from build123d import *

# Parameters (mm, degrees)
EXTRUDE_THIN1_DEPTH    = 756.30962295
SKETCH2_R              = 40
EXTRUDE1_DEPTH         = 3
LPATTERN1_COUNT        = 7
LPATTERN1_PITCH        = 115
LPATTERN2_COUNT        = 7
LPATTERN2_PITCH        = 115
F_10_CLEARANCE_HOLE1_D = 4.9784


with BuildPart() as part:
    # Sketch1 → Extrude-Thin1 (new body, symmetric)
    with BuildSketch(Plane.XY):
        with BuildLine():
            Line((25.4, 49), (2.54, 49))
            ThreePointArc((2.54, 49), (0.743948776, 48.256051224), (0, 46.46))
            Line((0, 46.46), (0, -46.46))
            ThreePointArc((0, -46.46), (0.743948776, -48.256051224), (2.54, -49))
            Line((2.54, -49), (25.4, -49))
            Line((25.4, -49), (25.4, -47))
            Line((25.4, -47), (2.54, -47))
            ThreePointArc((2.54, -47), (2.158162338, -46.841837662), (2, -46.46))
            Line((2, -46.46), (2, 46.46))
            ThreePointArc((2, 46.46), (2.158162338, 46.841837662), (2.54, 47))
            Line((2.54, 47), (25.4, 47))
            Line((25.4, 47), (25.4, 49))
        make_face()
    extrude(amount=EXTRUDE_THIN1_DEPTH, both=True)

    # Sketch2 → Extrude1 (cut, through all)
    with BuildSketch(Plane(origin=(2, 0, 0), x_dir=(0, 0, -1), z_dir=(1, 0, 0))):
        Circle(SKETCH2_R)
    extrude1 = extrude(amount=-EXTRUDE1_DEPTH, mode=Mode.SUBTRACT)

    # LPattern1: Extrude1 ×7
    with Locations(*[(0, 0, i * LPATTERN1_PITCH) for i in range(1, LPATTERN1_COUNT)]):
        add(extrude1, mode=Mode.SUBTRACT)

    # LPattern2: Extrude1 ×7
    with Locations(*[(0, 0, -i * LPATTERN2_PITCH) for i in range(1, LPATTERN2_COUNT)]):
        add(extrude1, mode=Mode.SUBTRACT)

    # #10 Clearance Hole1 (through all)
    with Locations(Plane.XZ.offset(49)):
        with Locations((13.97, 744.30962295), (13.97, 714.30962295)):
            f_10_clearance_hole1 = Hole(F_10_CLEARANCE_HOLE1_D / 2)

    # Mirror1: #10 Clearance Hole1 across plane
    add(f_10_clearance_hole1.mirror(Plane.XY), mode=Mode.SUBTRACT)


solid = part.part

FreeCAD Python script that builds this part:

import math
import FreeCAD as App
import Part
import Sketcher

V = App.Vector
Q = App.Units.Quantity

doc = App.newDocument("Part")
params = doc.addObject("Spreadsheet::Sheet", "Params")
for row, (alias, value) in enumerate([
    ("sketch1_height", "2 mm"),
    ("sketch1_radius", "2.54 mm"),
    ("sketch1_width", "22.86 mm"),
    ("pad1_length", "1512.619246 mm"),
    ("sketch2_diameter", "80 mm"),
    ("linearpattern_pitch", "115 mm"),
    ("linearpattern2_pitch", "115 mm"),
    ("hole_diameter", "4.9784 mm"),
], start=1):
    params.set(f"A{row}", alias)
    params.set(f"B{row}", "=" + value)
    params.setAlias(f"B{row}", alias)

body = doc.addObject("PartDesign::Body", "Body")

sketch1 = body.newObject("Sketcher::SketchObject", "Sketch")
sketch1.AttachmentSupport = (doc.getObject("XY_Plane"), [""])
sketch1.MapMode = "FlatFace"
sketch1.addGeometry(Part.LineSegment(V(25.4, 49, 0), V(2.5, 49, 0)), False)
sketch1.addGeometry(Part.ArcOfCircle(Part.Circle(V(2.5, 46.5, 0), V(0, 0, 1), 2.5), math.radians(90), math.radians(180)), False)
sketch1.addGeometry(Part.LineSegment(V(0, 46.5, 0), V(0, -46.5, 0)), False)
sketch1.addGeometry(Part.ArcOfCircle(Part.Circle(V(2.5, -46.5, 0), V(0, 0, 1), 2.5), math.radians(-180), math.radians(-90)), False)
sketch1.addGeometry(Part.LineSegment(V(2.5, -49, 0), V(25.4, -49, 0)), False)
sketch1.addGeometry(Part.LineSegment(V(25.4, -49, 0), V(25.4, -47, 0)), False)
sketch1.addGeometry(Part.LineSegment(V(25.4, -47, 0), V(2.5, -47, 0)), False)
sketch1.addGeometry(Part.ArcOfCircle(Part.Circle(V(2.5, -46.5, 0), V(0, 0, 1), 0.5), math.radians(180), math.radians(270)), False)
sketch1.addGeometry(Part.LineSegment(V(2, -46.5, 0), V(2, 46.5, 0)), False)
sketch1.addGeometry(Part.ArcOfCircle(Part.Circle(V(2.5, 46.5, 0), V(0, 0, 1), 0.5), math.radians(90), math.radians(180)), False)
sketch1.addGeometry(Part.LineSegment(V(2.5, 47, 0), V(25.4, 47, 0)), False)
sketch1.addGeometry(Part.LineSegment(V(25.4, 47, 0), V(25.4, 49, 0)), False)
sketch1.addConstraint(Sketcher.Constraint("Tangent", 0, 2, 1, 1))
sketch1.addConstraint(Sketcher.Constraint("Tangent", 1, 2, 2, 1))
sketch1.addConstraint(Sketcher.Constraint("Tangent", 2, 2, 3, 1))
sketch1.addConstraint(Sketcher.Constraint("Tangent", 3, 2, 4, 1))
sketch1.addConstraint(Sketcher.Constraint("Coincident", 4, 2, 5, 1))
sketch1.addConstraint(Sketcher.Constraint("Coincident", 5, 2, 6, 1))
sketch1.addConstraint(Sketcher.Constraint("Tangent", 6, 2, 7, 2))
sketch1.addConstraint(Sketcher.Constraint("Tangent", 7, 1, 8, 1))
sketch1.addConstraint(Sketcher.Constraint("Tangent", 8, 2, 9, 2))
sketch1.addConstraint(Sketcher.Constraint("Tangent", 9, 1, 10, 1))
sketch1.addConstraint(Sketcher.Constraint("Coincident", 10, 2, 11, 1))
sketch1.addConstraint(Sketcher.Constraint("Coincident", 11, 2, 0, 1))
sketch1.addConstraint(Sketcher.Constraint("Horizontal", 0))
sketch1.addConstraint(Sketcher.Constraint("Vertical", 2))
sketch1.addConstraint(Sketcher.Constraint("Horizontal", 4))
sketch1.addConstraint(Sketcher.Constraint("Vertical", 5))
sketch1.addConstraint(Sketcher.Constraint("Horizontal", 6))
sketch1.addConstraint(Sketcher.Constraint("Vertical", 8))
sketch1.addConstraint(Sketcher.Constraint("Horizontal", 10))
sketch1.addConstraint(Sketcher.Constraint("Vertical", 11))
sketch1.addConstraint(Sketcher.Constraint("Coincident", 7, 3, 3, 3))
sketch1.addConstraint(Sketcher.Constraint("Coincident", 9, 3, 1, 3))
sketch1.addConstraint(Sketcher.Constraint("Equal", 1, 3))
sketch1.addConstraint(Sketcher.Constraint("Symmetric", 1, 2, 2, 2, -1, 1))
sketch1.addConstraint(Sketcher.Constraint("Vertical", 5, 2, 10, 2))
sketch1.addConstraint(Sketcher.Constraint("DistanceY", 5, 1, 5, 2, Q("2 mm")))
sketch1.addConstraint(Sketcher.Constraint("Radius", 1, Q("2.54 mm")))
sketch1.addConstraint(Sketcher.Constraint("DistanceY", -1, 1, 0, 2, Q("49 mm")))
sketch1.addConstraint(Sketcher.Constraint("DistanceX", 0, 2, 0, 1, Q("22.86 mm")))
sketch1.setExpression("Constraints[25]", "Params.sketch1_height")
sketch1.setExpression("Constraints[26]", "Params.sketch1_radius")
sketch1.setExpression("Constraints[28]", "Params.sketch1_width")
pad1 = body.newObject("PartDesign::Pad", "Pad")
pad1.Profile = sketch1
pad1.setExpression("Length", "Params.pad1_length")
pad1.Midplane = True

sketch2 = body.newObject("Sketcher::SketchObject", "Sketch001")
sketch2.AttachmentSupport = (doc.getObject("YZ_Plane"), [""])
sketch2.MapMode = "FlatFace"
sketch2.AttachmentOffset = App.Placement(V(0, 0, 2), App.Rotation())
sketch2.addGeometry(Part.Circle(V(0, 0, 0), V(0, 0, 1), 40), False)
sketch2.addConstraint(Sketcher.Constraint("Coincident", 0, 3, -1, 1))
sketch2.addConstraint(Sketcher.Constraint("Diameter", 0, Q("80 mm")))
sketch2.setExpression("Constraints[1]", "Params.sketch2_diameter")
pocket1 = body.newObject("PartDesign::Pocket", "Pocket")
pocket1.Profile = sketch2
pocket1.Type = "ThroughAll"
doc.recompute()

linearpattern = body.newObject("PartDesign::LinearPattern", "LinearPattern")
linearpattern.Originals = [pocket1]
linearpattern.Direction = (doc.getObject("Z_Axis"), [""])
linearpattern.Mode = "offset"
linearpattern.setExpression("Offset", "Params.linearpattern_pitch")
linearpattern.Occurrences = 7
body.Tip = linearpattern
doc.recompute()

linearpattern2 = body.newObject("PartDesign::LinearPattern", "LinearPattern001")
linearpattern2.Originals = [pocket1]
linearpattern2.Direction = (doc.getObject("Z_Axis"), [""])
linearpattern2.Mode = "offset"
linearpattern2.setExpression("Offset", "Params.linearpattern2_pitch")
linearpattern2.Occurrences = 7
linearpattern2.Reversed = True
body.Tip = linearpattern2

sketch3 = body.newObject("Sketcher::SketchObject", "Sketch002")
sketch3.AttachmentSupport = (doc.getObject("XZ_Plane"), [""])
sketch3.MapMode = "FlatFace"
sketch3.AttachmentOffset = App.Placement(V(0, 0, 49), App.Rotation())
sketch3.addGeometry(Part.Circle(V(14, 744.3, 0), V(0, 0, 1), 2.5), False)
sketch3.addGeometry(Part.Circle(V(14, 714.3, 0), V(0, 0, 1), 2.5), False)
sketch3.addConstraint(Sketcher.Constraint("Equal", 0, 1))
sketch3.addConstraint(Sketcher.Constraint("Vertical", 0, 3, 1, 3))
sketch3.addConstraint(Sketcher.Constraint("DistanceY", 1, 3, 0, 3, Q("30 mm")))
sketch3.addConstraint(Sketcher.Constraint("Diameter", 0, Q("4.9784 mm")))
sketch3.addConstraint(Sketcher.Constraint("DistanceX", -1, 1, 0, 3, Q("13.97 mm")))
sketch3.addConstraint(Sketcher.Constraint("DistanceY", -1, 1, 0, 3, Q("744.309623 mm")))
doc.recompute()
hole = body.newObject("PartDesign::Hole", "Hole")
hole.Profile = sketch3
hole.ThreadType = "None"
hole.setExpression("Diameter", "Params.hole_diameter")
hole.DepthType = "ThroughAll"
doc.recompute()

mirrored = body.newObject("PartDesign::Mirrored", "Mirrored")
mirrored.Originals = [hole]
mirrored.MirrorPlane = (doc.getObject("XY_Plane"), [""])
body.Tip = mirrored

doc.recompute()
